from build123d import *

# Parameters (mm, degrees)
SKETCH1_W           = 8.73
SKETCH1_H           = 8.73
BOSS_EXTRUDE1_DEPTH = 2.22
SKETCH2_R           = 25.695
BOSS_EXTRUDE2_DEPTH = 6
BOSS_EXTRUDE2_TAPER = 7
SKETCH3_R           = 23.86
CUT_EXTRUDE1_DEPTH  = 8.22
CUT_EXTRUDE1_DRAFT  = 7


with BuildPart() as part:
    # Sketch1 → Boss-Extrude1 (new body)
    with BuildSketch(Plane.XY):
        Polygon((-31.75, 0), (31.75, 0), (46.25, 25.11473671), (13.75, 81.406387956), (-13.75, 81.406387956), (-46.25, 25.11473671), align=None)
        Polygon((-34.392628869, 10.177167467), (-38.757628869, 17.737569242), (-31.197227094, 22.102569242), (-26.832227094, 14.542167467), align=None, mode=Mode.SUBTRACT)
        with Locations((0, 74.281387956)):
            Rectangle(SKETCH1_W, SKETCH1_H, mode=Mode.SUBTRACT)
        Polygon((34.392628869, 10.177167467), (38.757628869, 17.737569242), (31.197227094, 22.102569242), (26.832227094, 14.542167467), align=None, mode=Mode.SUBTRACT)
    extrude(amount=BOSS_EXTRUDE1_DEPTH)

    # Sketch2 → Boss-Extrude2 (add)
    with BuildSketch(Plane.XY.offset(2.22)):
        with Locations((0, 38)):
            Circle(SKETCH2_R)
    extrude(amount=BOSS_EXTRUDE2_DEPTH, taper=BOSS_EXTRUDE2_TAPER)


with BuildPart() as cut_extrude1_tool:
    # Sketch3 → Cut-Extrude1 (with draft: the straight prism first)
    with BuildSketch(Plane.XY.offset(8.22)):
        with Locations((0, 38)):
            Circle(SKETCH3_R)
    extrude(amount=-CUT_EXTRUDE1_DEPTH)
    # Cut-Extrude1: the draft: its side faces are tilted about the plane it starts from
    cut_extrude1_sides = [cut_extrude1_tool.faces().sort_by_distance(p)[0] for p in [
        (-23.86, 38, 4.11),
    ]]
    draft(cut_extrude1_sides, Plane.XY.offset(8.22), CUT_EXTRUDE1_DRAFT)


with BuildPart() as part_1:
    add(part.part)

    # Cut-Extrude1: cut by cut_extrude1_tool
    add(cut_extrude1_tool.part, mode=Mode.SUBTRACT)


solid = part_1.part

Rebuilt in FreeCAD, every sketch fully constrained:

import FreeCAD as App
import Part
import Sketcher
from FreeCAD import Vector
Q = App.Units.Quantity


def faces_at(feature, points):
    """Names of the faces that lie closest to the given points."""
    faces = feature.Shape.Faces
    near = lambda p: min(range(len(faces)), key=lambda i: faces[i].distToShape(Part.Vertex(*p))[0])
    return sorted({f"Face{near(p) + 1}" for p in points})


def add_polygon(sketch, points):
    """Adds a closed chain of lines whose ends are joined by coincident constraints."""
    first, n = sketch.GeometryCount, len(points)
    for a, b in zip(points, points[1:] + points[:1]):
        sketch.addGeometry(Part.LineSegment(App.Vector(*a, 0), App.Vector(*b, 0)), False)
    for i in range(n):
        sketch.addConstraint(Sketcher.Constraint("Coincident", first + i, 2, first + (i + 1) % n, 1))

doc = App.newDocument("Part")
body = doc.addObject("PartDesign::Body", "Body")

sketch1 = doc.addObject("Sketcher::SketchObject", "Sketch")
body.addObject(sketch1)
sketch1.AttachmentSupport = (doc.XY_Plane, [""])
sketch1.MapMode = "FlatFace"
add_polygon(sketch1, [(-31.75, 0), (31.75, 0), (46.25, 25.114737), (13.75, 81.406388), (-13.75, 81.406388), (-46.25, 25.114737)])
add_polygon(sketch1, [(-26.832227, 14.542167), (-34.392629, 10.177167), (-38.757629, 17.737569), (-31.197227, 22.102569)])
add_polygon(sketch1, [(38.757629, 17.737569), (34.392629, 10.177167), (26.832227, 14.542167), (31.197227, 22.102569)])
add_polygon(sketch1, [(4.365, 69.916388), (-4.365, 69.916388), (-4.365, 78.646388), (4.365, 78.646388)])
sketch1.addConstraint(Sketcher.Constraint("Horizontal", 0))
sketch1.addConstraint(Sketcher.Constraint("Horizontal", 3))
sketch1.addConstraint(Sketcher.Constraint("Horizontal", 14))
sketch1.addConstraint(Sketcher.Constraint("Vertical", 15))
sketch1.addConstraint(Sketcher.Constraint("Horizontal", 16))
sketch1.addConstraint(Sketcher.Constraint("Vertical", 17))
sketch1.addConstraint(Sketcher.Constraint("Symmetric", 0, 2, 5, 2, -1, 1))
sketch1.addConstraint(Sketcher.Constraint("Symmetric", 1, 2, 4, 2, -2))
sketch1.addConstraint(Sketcher.Constraint("Symmetric", 6, 2, 10, 2, -2))
sketch1.addConstraint(Sketcher.Constraint("Symmetric", 9, 2, 11, 2, -2))
sketch1.addConstraint(Sketcher.Constraint("Symmetric", 8, 2, 12, 2, -2))
sketch1.addConstraint(Sketcher.Constraint("Symmetric", 7, 2, 13, 2, -2))
sketch1.addConstraint(Sketcher.Constraint("Parallel", 1, 4))
sketch1.addConstraint(Sketcher.Constraint("Parallel", 2, 5))
sketch1.addConstraint(Sketcher.Constraint("Perpendicular", 5, 6))
sketch1.addConstraint(Sketcher.Constraint("Perpendicular", 6, 7))
sketch1.addConstraint(Sketcher.Constraint("Perpendicular", 7, 8))
sketch1.addConstraint(Sketcher.Constraint("Perpendicular", 8, 9))
sketch1.addConstraint(Sketcher.Constraint("Equal", 16, 15))
sketch1.addConstraint(Sketcher.Constraint("Equal", 6, 7))
sketch1.addConstraint(Sketcher.Constraint("Angle", 1, Q("60 deg")))
sketch1.addConstraint(Sketcher.Constraint("Distance", 1, 29.0))
sketch1.addConstraint(Sketcher.Constraint("Distance", 2, 65.0))
sketch1.addConstraint(Sketcher.Constraint("DistanceX", 0, 1, 0, 2, 63.5))
sketch1.addConstraint(Sketcher.Constraint("DistanceX", 14, 2, 14, 1, 8.73))
sketch1.addConstraint(Sketcher.Constraint("Distance", 6, 8.73))
sketch1.addConstraint(Sketcher.Constraint("DistanceY", 14, 2, 3, 2, 11.49))
sketch1.addConstraint(Sketcher.Constraint("DistanceX", 14, 2, -1, 1, 4.365))
sketch1.addConstraint(Sketcher.Constraint("DistanceX", 6, 2, -1, 1, 34.392629))
sketch1.addConstraint(Sketcher.Constraint("DistanceY", -1, 1, 7, 2, 17.737569))
pad1 = doc.addObject("PartDesign::Pad", "Pad")
body.addObject(pad1)
pad1.Profile = sketch1
pad1.Length = 2.22

sketch2 = doc.addObject("Sketcher::SketchObject", "Sketch001")
body.addObject(sketch2)
sketch2.AttachmentSupport = (doc.XY_Plane, [""])
sketch2.MapMode = "FlatFace"
sketch2.AttachmentOffset = App.Placement(Vector(0, 0, 2.22), App.Rotation())
sketch2.addGeometry(Part.Circle(Vector(0, 38, 0), Vector(0, 0, 1), 25.695), False)
sketch2.addConstraint(Sketcher.Constraint("PointOnObject", 0, 3, -2))
sketch2.addConstraint(Sketcher.Constraint("Diameter", 0, 51.39))
sketch2.addConstraint(Sketcher.Constraint("DistanceY", -1, 1, 0, 3, 38.0))
pad2 = doc.addObject("PartDesign::Pad", "Pad001")
body.addObject(pad2)
pad2.Profile = sketch2
pad2.Length = 6
pad2.TaperAngle = -7
body2 = doc.addObject("PartDesign::Body", "Body001")

sketch3 = doc.addObject("Sketcher::SketchObject", "Sketch002")
body2.addObject(sketch3)
sketch3.AttachmentSupport = (doc.getObject("XY_Plane001"), [""])
sketch3.MapMode = "FlatFace"
sketch3.AttachmentOffset = App.Placement(Vector(0, 0, 8.22), App.Rotation())
sketch3.addGeometry(Part.Circle(Vector(0, 38, 0), Vector(0, 0, 1), 23.86), False)
sketch3.addConstraint(Sketcher.Constraint("PointOnObject", 0, 3, -2))
sketch3.addConstraint(Sketcher.Constraint("Diameter", 0, 47.72))
sketch3.addConstraint(Sketcher.Constraint("DistanceY", -1, 1, 0, 3, 38.0))
pad3 = doc.addObject("PartDesign::Pad", "Pad002")
body2.addObject(pad3)
pad3.Profile = sketch3
pad3.Length = 8.22
pad3.Reversed = True
doc.recompute()

datumplane = doc.addObject("PartDesign::Plane", "DatumPlane")
body2.addObject(datumplane)
datumplane.AttachmentSupport = (doc.getObject("XY_Plane001"), [""])
datumplane.MapMode = "FlatFace"
datumplane.AttachmentOffset = App.Placement(Vector(0, 0, 8.22), App.Rotation())
draft = doc.addObject("PartDesign::Draft", "Draft")
body2.addObject(draft)
draft.Base = (pad3, faces_at(pad3, [(-23.86, 38, 4.11)]))
draft.NeutralPlane = (datumplane, [""])
draft.Angle = 7
draft.Reversed = False
doc.recompute()

boolean = doc.addObject("PartDesign::Boolean", "Boolean")
body.addObject(boolean)
boolean.Type = "Cut"
boolean.addObjects([body2])

doc.recompute()
